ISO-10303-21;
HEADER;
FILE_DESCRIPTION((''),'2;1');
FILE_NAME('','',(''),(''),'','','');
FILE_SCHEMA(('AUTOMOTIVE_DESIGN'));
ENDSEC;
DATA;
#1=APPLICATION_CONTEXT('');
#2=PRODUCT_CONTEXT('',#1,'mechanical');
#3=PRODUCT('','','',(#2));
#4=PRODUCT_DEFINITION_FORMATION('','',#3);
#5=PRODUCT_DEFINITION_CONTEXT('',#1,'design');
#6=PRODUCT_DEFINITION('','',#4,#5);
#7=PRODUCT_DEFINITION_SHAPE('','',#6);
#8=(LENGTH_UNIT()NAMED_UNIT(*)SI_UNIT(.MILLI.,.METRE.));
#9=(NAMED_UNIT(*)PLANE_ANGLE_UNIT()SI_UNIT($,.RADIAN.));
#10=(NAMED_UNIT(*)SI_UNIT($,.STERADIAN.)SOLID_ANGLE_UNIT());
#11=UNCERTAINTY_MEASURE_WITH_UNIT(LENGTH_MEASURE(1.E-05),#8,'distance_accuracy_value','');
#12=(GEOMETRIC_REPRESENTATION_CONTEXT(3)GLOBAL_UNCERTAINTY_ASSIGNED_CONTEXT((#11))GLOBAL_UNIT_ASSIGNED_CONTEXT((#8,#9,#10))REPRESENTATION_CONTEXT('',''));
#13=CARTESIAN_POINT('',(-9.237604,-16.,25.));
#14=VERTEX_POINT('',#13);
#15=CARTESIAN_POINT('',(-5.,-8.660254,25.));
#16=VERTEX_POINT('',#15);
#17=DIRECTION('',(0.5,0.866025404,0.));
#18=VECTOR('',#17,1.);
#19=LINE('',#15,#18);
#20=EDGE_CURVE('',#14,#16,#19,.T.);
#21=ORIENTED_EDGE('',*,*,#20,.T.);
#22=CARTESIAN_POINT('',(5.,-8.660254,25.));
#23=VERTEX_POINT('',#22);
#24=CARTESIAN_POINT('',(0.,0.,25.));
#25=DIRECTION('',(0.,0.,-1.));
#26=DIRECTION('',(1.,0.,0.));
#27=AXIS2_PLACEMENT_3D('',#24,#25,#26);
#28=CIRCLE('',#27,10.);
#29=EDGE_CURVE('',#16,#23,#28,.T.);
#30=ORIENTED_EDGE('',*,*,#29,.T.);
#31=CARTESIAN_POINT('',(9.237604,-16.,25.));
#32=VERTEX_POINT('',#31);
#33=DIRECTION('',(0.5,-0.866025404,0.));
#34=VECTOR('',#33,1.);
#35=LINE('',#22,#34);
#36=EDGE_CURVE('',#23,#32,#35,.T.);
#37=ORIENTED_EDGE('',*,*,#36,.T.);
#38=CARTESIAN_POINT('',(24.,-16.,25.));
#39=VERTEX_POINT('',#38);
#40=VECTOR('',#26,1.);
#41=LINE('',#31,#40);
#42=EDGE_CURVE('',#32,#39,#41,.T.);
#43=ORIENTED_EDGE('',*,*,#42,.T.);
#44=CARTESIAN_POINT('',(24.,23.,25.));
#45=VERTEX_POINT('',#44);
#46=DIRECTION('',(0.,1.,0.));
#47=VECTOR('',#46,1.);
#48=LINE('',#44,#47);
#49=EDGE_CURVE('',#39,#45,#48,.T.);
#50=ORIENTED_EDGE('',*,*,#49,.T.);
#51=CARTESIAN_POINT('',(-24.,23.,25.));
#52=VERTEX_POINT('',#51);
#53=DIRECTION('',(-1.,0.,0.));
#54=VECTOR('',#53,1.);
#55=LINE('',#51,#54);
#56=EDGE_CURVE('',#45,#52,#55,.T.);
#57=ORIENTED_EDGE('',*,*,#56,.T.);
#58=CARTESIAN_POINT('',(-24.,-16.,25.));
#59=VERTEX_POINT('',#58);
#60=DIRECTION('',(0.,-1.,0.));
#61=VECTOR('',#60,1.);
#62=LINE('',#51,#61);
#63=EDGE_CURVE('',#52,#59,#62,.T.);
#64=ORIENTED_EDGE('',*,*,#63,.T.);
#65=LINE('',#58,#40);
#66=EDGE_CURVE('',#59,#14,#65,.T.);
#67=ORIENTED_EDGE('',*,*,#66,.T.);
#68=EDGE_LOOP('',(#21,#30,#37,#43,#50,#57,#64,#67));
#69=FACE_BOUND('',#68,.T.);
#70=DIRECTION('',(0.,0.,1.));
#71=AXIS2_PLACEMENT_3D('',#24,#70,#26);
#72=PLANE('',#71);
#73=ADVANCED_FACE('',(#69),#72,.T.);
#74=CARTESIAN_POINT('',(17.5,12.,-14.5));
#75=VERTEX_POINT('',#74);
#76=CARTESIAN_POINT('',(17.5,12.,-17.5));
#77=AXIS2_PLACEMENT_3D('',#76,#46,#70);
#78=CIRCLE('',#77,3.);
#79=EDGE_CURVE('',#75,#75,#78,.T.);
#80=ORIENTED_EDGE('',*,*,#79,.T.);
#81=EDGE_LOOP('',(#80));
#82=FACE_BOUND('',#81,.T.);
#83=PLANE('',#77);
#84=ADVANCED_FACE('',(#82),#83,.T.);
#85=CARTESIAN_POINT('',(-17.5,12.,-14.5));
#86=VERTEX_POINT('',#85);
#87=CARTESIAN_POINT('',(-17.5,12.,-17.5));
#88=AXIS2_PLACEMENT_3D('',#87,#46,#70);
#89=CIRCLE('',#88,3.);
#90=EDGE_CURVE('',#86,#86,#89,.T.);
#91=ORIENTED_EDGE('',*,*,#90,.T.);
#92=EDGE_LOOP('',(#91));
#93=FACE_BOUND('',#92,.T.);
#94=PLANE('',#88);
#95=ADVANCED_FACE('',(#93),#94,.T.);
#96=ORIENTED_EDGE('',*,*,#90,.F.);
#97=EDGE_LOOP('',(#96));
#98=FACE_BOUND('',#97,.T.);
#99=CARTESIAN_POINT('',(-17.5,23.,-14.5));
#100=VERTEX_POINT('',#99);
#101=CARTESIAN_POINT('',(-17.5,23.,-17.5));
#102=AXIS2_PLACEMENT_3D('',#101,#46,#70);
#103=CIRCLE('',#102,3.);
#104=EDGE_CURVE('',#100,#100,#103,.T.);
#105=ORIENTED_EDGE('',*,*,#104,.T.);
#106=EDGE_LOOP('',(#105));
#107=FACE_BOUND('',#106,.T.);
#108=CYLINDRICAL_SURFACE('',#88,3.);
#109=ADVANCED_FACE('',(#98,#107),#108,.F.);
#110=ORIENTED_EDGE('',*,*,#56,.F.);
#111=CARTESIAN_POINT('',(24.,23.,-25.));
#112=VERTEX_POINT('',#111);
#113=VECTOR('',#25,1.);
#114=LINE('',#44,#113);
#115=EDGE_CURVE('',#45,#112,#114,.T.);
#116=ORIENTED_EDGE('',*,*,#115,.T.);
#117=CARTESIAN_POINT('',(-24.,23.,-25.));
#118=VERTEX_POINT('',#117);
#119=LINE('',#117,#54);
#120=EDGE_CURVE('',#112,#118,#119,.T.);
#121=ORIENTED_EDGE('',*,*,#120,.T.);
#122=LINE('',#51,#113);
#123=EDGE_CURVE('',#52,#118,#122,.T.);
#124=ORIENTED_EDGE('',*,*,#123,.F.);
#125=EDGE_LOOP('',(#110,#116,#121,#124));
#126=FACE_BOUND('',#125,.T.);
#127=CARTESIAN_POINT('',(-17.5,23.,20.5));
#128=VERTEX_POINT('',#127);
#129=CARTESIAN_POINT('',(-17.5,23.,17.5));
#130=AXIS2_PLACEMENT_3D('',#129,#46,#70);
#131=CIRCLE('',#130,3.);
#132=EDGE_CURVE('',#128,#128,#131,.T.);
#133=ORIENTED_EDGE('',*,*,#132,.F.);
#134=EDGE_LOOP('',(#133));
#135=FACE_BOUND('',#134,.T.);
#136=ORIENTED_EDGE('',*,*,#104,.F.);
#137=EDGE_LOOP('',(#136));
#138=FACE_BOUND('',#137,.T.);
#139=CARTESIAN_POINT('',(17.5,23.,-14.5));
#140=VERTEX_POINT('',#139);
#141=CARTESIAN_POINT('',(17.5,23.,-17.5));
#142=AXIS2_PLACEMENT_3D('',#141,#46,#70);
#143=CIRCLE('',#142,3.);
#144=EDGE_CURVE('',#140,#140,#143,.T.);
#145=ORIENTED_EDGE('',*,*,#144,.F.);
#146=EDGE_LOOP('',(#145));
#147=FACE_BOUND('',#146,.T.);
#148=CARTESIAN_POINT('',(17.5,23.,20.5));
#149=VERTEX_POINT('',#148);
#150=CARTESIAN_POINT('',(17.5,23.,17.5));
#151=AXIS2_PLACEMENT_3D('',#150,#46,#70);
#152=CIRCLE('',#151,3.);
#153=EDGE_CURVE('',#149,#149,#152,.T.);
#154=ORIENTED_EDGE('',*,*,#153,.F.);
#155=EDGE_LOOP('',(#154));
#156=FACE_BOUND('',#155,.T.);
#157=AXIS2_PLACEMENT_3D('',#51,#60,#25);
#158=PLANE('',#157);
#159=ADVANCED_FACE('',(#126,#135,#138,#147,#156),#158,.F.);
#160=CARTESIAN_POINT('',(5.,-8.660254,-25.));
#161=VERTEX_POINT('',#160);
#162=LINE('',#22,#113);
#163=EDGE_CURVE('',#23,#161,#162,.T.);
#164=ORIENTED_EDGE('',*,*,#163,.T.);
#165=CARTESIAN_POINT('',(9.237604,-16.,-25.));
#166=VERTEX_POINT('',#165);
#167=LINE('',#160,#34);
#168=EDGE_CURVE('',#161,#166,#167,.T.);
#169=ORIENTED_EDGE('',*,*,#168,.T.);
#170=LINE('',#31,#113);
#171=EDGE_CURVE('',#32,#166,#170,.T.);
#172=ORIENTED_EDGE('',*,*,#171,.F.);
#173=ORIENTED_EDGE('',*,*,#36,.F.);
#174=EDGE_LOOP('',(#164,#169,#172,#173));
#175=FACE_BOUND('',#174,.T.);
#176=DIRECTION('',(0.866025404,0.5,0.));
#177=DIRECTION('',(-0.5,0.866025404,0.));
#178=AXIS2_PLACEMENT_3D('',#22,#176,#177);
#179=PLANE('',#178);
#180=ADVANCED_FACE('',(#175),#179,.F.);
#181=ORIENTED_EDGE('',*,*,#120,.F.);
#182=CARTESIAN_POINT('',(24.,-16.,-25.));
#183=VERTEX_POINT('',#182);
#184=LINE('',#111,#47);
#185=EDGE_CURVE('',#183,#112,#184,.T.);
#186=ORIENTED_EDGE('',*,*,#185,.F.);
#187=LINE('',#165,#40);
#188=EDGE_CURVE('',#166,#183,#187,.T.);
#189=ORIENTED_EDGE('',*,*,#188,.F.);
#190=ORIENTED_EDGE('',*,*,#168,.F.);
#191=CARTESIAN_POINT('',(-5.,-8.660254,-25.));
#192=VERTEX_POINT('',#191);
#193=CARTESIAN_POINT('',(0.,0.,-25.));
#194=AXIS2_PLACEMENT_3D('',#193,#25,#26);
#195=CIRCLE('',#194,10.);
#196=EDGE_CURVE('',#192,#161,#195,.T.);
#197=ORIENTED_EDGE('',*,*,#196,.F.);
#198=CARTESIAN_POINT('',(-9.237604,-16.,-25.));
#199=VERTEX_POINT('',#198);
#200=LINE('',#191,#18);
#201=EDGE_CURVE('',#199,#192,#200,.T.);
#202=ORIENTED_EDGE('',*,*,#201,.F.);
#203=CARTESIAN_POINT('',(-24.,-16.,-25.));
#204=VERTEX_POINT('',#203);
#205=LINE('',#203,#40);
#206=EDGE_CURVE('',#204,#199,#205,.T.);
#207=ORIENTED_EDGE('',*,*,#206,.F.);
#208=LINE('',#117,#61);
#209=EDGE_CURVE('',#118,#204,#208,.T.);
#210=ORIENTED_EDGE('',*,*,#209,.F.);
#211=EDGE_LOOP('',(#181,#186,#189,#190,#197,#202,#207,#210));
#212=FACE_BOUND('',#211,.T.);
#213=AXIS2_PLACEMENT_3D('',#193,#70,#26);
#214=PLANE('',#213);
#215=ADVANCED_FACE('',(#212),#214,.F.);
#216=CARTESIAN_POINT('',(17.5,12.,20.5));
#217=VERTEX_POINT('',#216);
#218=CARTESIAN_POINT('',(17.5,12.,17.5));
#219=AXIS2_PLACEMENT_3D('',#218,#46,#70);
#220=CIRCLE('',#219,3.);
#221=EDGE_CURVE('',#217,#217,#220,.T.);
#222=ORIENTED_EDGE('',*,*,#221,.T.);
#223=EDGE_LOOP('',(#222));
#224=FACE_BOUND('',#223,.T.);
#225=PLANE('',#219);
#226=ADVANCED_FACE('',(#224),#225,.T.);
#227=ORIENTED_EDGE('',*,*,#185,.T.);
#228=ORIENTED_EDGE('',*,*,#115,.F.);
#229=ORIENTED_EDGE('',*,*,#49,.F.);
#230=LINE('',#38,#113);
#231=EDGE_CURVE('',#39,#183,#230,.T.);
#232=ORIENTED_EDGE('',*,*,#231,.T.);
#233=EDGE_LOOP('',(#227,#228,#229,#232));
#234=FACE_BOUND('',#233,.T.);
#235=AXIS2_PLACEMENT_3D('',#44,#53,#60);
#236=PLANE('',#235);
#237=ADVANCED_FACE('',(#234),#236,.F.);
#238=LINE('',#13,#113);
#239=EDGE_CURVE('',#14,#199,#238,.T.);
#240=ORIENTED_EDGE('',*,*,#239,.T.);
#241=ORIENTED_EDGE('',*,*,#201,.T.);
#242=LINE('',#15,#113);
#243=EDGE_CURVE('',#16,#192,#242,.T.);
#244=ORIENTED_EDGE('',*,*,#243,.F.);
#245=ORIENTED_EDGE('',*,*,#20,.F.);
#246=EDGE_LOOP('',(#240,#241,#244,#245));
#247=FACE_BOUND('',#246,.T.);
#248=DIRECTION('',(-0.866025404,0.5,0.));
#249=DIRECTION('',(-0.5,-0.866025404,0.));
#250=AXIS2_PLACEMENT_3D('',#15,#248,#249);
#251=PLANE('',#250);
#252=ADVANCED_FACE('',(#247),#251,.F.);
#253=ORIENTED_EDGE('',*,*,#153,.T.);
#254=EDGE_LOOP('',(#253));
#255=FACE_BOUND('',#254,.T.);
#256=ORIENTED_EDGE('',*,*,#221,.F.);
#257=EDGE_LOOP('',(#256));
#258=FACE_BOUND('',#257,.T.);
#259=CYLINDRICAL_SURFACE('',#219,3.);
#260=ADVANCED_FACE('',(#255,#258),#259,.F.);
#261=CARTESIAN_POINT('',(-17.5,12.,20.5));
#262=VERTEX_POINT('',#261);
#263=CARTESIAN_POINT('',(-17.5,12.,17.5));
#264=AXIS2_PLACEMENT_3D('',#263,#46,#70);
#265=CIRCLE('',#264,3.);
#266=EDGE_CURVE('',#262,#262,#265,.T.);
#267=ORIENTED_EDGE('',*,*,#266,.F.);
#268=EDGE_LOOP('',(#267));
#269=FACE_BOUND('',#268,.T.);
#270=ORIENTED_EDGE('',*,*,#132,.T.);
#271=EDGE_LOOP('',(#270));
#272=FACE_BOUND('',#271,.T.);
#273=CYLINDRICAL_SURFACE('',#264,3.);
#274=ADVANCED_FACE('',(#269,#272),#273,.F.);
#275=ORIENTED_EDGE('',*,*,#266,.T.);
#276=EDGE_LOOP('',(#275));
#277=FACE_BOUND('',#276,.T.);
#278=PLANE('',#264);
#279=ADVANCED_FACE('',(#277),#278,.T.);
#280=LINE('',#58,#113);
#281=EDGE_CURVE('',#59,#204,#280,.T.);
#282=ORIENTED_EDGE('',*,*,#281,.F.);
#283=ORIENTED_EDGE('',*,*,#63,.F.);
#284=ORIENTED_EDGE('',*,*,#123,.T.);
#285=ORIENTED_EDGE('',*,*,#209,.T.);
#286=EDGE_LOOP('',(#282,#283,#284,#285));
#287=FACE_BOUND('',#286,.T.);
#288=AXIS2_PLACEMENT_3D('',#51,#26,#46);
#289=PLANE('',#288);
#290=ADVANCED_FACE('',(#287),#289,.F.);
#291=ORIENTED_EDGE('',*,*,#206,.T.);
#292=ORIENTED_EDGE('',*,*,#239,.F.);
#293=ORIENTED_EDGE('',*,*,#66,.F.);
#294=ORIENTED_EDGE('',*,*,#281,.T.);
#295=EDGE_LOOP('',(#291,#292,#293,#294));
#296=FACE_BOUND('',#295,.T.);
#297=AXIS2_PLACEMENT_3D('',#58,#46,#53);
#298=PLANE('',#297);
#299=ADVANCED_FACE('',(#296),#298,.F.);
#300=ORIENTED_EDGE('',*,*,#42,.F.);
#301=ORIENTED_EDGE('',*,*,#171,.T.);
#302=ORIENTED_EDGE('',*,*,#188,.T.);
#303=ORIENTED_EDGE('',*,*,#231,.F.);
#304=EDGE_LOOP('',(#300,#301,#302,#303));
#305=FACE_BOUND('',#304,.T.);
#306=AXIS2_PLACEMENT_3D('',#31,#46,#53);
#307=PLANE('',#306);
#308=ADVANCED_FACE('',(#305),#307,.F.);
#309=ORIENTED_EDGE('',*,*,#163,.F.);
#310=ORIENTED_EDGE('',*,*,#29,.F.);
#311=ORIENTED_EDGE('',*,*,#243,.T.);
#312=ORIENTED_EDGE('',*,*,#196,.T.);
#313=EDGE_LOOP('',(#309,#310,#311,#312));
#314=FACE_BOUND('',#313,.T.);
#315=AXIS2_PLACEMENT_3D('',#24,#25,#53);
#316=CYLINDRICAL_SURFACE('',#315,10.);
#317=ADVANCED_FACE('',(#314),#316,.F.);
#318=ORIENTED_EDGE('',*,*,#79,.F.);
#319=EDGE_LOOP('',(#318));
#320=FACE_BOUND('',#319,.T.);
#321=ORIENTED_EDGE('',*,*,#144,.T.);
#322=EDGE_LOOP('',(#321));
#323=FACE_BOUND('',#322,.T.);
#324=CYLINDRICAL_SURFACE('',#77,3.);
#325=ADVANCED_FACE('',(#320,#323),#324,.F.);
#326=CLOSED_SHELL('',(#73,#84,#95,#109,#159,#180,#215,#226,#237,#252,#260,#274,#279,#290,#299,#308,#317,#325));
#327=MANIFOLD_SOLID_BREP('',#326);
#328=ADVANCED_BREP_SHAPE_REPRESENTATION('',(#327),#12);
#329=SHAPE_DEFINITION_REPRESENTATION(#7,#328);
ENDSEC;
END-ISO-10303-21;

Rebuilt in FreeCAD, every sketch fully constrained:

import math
import FreeCAD as App
import Part
import Sketcher
from FreeCAD import Vector
Q = App.Units.Quantity

doc = App.newDocument("Part")
params = doc.addObject("Spreadsheet::Sheet", "Params")
for row, (alias, value) in enumerate([
    ("sketch1_radius", "10 mm"),
    ("sketch1_width", "48 mm"),
    ("sketch1_height", "39 mm"),
    ("pad1_length", "50 mm"),
    ("sketch2_diameter", "6 mm"),
    ("pocket1_length", "11 mm"),
], start=1):
    params.set(f"A{row}", alias)
    params.set(f"B{row}", "=" + value)
    params.setAlias(f"B{row}", alias)

body = doc.addObject("PartDesign::Body", "Body")

# Sketch on XY plane
sketch1 = body.newObject("Sketcher::SketchObject", "Sketch")
sketch1.AttachmentSupport = (doc.getObject("XY_Plane"), [""])
sketch1.MapMode = "FlatFace"
sketch1.addGeometry([
    Part.LineSegment(Vector(24, 23, 0), Vector(-24, 23, 0)),  # 0
    Part.LineSegment(Vector(-24, 23, 0), Vector(-24, -16, 0)),  # 1
    Part.LineSegment(Vector(-24, -16, 0), Vector(-9.237604, -16, 0)),  # 2
    Part.LineSegment(Vector(-9.237604, -16, 0), Vector(-5, -8.660254, 0)),  # 3
    Part.ArcOfCircle(Part.Circle(Vector(0, 0, 0), Vector(0, 0, 1), 10), math.radians(-60), math.radians(240)),  # 4
    Part.LineSegment(Vector(5, -8.660254, 0), Vector(9.237604, -16, 0)),  # 5
    Part.LineSegment(Vector(9.237604, -16, 0), Vector(24, -16, 0)),  # 6
    Part.LineSegment(Vector(24, -16, 0), Vector(24, 23, 0)),  # 7
], False)
sketch1.addConstraint([
    Sketcher.Constraint("Coincident", 0, 2, 1, 1),
    Sketcher.Constraint("Coincident", 1, 2, 2, 1),
    Sketcher.Constraint("Coincident", 2, 2, 3, 1),
    Sketcher.Constraint("Coincident", 3, 2, 4, 2),
    Sketcher.Constraint("Coincident", 4, 1, 5, 1),
    Sketcher.Constraint("Coincident", 5, 2, 6, 1),
    Sketcher.Constraint("Coincident", 6, 2, 7, 1),
    Sketcher.Constraint("Coincident", 7, 2, 0, 1),
    Sketcher.Constraint("Horizontal", 0),
    Sketcher.Constraint("Vertical", 1),
    Sketcher.Constraint("Horizontal", 2),
    Sketcher.Constraint("Horizontal", 6),
    Sketcher.Constraint("Vertical", 7),
    Sketcher.Constraint("Coincident", 4, 3, -1, 1),
    Sketcher.Constraint("Symmetric", 2, 2, 5, 2, -2),
    Sketcher.Constraint("Horizontal", 3, 2, 4, 1),
    Sketcher.Constraint("Equal", 2, 6),
    Sketcher.Constraint("Radius", 4, Q("10 mm")),
    Sketcher.Constraint("DistanceX", 0, 2, 0, 1, Q("48 mm")),
    Sketcher.Constraint("DistanceY", 1, 2, 1, 1, Q("39 mm")),
    Sketcher.Constraint("Angle", 3, Q("60 deg")),
    Sketcher.Constraint("DistanceY", -1, 1, 0, 2, Q("23 mm")),
    Sketcher.Constraint("DistanceX", 3, 2, -1, 1, Q("5 mm")),
])
sketch1.setExpression("Constraints[17]", "Params.sketch1_radius")
sketch1.setExpression("Constraints[18]", "Params.sketch1_width")
sketch1.setExpression("Constraints[19]", "Params.sketch1_height")
pad1 = body.newObject("PartDesign::Pad", "Pad")
pad1.Profile = sketch1
pad1.setExpression("Length", "Params.pad1_length")
pad1.Midplane = True

# Sketch on XZ plane
sketch2 = body.newObject("Sketcher::SketchObject", "Sketch001")
sketch2.AttachmentSupport = (doc.getObject("XZ_Plane"), [""])
sketch2.MapMode = "FlatFace"
sketch2.AttachmentOffset = App.Placement(Vector(0, 0, -23), App.Rotation())
sketch2.addGeometry([
    Part.Circle(Vector(-17.5, -17.5, 0), Vector(0, 0, 1), 3),
    Part.Circle(Vector(17.5, -17.5, 0), Vector(0, 0, 1), 3),
    Part.Circle(Vector(17.5, 17.5, 0), Vector(0, 0, 1), 3),
    Part.Circle(Vector(-17.5, 17.5, 0), Vector(0, 0, 1), 3),
], False)
sketch2.addConstraint([
    Sketcher.Constraint("Equal", 0, 1),
    Sketcher.Constraint("Equal", 1, 2),
    Sketcher.Constraint("Equal", 2, 3),
    Sketcher.Constraint("Symmetric", 0, 3, 2, 3, -1, 1),
    Sketcher.Constraint("Symmetric", 1, 3, 3, 3, -1, 1),
    Sketcher.Constraint("Symmetric", 0, 3, 1, 3, -2),
    Sketcher.Constraint("Diameter", 0, Q("6 mm")),
    Sketcher.Constraint("DistanceX", 0, 3, 1, 3, Q("35 mm")),
    Sketcher.Constraint("DistanceY", 1, 3, 2, 3, Q("35 mm")),
])
sketch2.setExpression("Constraints[6]", "Params.sketch2_diameter")
pocket1 = body.newObject("PartDesign::Pocket", "Pocket")
pocket1.Profile = sketch2
pocket1.setExpression("Length", "Params.pocket1_length")
pocket1.Reversed = True

doc.recompute()
